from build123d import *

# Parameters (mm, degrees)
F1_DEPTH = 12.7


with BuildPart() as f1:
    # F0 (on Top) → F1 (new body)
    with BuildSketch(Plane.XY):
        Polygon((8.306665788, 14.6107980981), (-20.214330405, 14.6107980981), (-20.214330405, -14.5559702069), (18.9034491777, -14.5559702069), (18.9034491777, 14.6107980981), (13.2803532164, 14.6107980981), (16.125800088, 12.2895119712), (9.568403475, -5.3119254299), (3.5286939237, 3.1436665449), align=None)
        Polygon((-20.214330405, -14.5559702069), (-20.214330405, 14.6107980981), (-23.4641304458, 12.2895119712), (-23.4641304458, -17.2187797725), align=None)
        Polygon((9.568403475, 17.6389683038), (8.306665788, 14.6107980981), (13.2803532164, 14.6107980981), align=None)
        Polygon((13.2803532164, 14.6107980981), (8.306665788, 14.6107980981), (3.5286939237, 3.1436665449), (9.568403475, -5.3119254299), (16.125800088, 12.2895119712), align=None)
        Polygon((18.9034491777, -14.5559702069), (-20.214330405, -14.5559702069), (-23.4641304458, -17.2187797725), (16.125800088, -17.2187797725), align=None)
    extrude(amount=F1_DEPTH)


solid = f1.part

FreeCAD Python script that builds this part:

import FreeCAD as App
import Part
import Sketcher
from FreeCAD import Vector
Q = App.Units.Quantity


def add_polygon(sketch, points):
    """Adds a closed chain of lines whose ends are joined by coincident constraints."""
    first, n = sketch.GeometryCount, len(points)
    for a, b in zip(points, points[1:] + points[:1]):
        sketch.addGeometry(Part.LineSegment(App.Vector(*a, 0), App.Vector(*b, 0)), False)
    for i in range(n):
        sketch.addConstraint(Sketcher.Constraint("Coincident", first + i, 2, first + (i + 1) % n, 1))

doc = App.newDocument("Part")
params = doc.addObject("Spreadsheet::Sheet", "Params")
for row, (alias, value) in enumerate([
    ("pad1_length", "0.5 in"),
], start=1):
    params.set(f"A{row}", alias)
    params.set(f"B{row}", "=" + value)
    params.setAlias(f"B{row}", alias)

body = doc.addObject("PartDesign::Body", "Body")

sketch1 = body.newObject("Sketcher::SketchObject", "Sketch")
sketch1.AttachmentSupport = (doc.getObject("XY_Plane"), [""])
sketch1.MapMode = "FlatFace"
add_polygon(sketch1, [(8.3, 14.6), (-20.2, 14.6), (-23.5, 12.3), (-23.5, -17.2), (16.1, -17.2), (18.9, -14.6), (18.9, 14.6), (13.3, 14.6), (9.6, 17.6)])
sketch1.addConstraint([
    Sketcher.Constraint("Horizontal", 0),
    Sketcher.Constraint("Vertical", 2),
    Sketcher.Constraint("Horizontal", 3),
    Sketcher.Constraint("Vertical", 5),
    Sketcher.Constraint("Horizontal", 6),
    Sketcher.Constraint("Horizontal", 0, 2, 5, 2),
    Sketcher.Constraint("DistanceX", 3, 1, 3, 2, Q("39.589931 mm")),
    Sketcher.Constraint("DistanceY", 2, 2, 2, 1, Q("29.508292 mm")),
    Sketcher.Constraint("DistanceY", 5, 1, 5, 2, Q("29.166768 mm")),
    Sketcher.Constraint("DistanceY", -1, 1, 0, 2, Q("14.610798 mm")),
    Sketcher.Constraint("DistanceX", -1, 1, 3, 2, Q("16.1258 mm")),
    Sketcher.Constraint("DistanceX", 1, 2, 0, 2, Q("3.2498 mm")),
    Sketcher.Constraint("Distance", 1, Q("3.993691 mm")),
    Sketcher.Constraint("DistanceX", 0, 2, 0, 1, Q("28.520996 mm")),
    Sketcher.Constraint("DistanceX", 6, 2, 6, 1, Q("5.623096 mm")),
    Sketcher.Constraint("DistanceX", -1, 1, 4, 2, Q("18.903449 mm")),
    Sketcher.Constraint("DistanceY", -1, 1, 7, 2, Q("17.638968 mm")),
    Sketcher.Constraint("DistanceX", 7, 2, 6, 2, Q("3.71195 mm")),
])
pad1 = body.newObject("PartDesign::Pad", "Pad")
pad1.Profile = sketch1
pad1.setExpression("Length", "Params.pad1_length")

doc.recompute()
